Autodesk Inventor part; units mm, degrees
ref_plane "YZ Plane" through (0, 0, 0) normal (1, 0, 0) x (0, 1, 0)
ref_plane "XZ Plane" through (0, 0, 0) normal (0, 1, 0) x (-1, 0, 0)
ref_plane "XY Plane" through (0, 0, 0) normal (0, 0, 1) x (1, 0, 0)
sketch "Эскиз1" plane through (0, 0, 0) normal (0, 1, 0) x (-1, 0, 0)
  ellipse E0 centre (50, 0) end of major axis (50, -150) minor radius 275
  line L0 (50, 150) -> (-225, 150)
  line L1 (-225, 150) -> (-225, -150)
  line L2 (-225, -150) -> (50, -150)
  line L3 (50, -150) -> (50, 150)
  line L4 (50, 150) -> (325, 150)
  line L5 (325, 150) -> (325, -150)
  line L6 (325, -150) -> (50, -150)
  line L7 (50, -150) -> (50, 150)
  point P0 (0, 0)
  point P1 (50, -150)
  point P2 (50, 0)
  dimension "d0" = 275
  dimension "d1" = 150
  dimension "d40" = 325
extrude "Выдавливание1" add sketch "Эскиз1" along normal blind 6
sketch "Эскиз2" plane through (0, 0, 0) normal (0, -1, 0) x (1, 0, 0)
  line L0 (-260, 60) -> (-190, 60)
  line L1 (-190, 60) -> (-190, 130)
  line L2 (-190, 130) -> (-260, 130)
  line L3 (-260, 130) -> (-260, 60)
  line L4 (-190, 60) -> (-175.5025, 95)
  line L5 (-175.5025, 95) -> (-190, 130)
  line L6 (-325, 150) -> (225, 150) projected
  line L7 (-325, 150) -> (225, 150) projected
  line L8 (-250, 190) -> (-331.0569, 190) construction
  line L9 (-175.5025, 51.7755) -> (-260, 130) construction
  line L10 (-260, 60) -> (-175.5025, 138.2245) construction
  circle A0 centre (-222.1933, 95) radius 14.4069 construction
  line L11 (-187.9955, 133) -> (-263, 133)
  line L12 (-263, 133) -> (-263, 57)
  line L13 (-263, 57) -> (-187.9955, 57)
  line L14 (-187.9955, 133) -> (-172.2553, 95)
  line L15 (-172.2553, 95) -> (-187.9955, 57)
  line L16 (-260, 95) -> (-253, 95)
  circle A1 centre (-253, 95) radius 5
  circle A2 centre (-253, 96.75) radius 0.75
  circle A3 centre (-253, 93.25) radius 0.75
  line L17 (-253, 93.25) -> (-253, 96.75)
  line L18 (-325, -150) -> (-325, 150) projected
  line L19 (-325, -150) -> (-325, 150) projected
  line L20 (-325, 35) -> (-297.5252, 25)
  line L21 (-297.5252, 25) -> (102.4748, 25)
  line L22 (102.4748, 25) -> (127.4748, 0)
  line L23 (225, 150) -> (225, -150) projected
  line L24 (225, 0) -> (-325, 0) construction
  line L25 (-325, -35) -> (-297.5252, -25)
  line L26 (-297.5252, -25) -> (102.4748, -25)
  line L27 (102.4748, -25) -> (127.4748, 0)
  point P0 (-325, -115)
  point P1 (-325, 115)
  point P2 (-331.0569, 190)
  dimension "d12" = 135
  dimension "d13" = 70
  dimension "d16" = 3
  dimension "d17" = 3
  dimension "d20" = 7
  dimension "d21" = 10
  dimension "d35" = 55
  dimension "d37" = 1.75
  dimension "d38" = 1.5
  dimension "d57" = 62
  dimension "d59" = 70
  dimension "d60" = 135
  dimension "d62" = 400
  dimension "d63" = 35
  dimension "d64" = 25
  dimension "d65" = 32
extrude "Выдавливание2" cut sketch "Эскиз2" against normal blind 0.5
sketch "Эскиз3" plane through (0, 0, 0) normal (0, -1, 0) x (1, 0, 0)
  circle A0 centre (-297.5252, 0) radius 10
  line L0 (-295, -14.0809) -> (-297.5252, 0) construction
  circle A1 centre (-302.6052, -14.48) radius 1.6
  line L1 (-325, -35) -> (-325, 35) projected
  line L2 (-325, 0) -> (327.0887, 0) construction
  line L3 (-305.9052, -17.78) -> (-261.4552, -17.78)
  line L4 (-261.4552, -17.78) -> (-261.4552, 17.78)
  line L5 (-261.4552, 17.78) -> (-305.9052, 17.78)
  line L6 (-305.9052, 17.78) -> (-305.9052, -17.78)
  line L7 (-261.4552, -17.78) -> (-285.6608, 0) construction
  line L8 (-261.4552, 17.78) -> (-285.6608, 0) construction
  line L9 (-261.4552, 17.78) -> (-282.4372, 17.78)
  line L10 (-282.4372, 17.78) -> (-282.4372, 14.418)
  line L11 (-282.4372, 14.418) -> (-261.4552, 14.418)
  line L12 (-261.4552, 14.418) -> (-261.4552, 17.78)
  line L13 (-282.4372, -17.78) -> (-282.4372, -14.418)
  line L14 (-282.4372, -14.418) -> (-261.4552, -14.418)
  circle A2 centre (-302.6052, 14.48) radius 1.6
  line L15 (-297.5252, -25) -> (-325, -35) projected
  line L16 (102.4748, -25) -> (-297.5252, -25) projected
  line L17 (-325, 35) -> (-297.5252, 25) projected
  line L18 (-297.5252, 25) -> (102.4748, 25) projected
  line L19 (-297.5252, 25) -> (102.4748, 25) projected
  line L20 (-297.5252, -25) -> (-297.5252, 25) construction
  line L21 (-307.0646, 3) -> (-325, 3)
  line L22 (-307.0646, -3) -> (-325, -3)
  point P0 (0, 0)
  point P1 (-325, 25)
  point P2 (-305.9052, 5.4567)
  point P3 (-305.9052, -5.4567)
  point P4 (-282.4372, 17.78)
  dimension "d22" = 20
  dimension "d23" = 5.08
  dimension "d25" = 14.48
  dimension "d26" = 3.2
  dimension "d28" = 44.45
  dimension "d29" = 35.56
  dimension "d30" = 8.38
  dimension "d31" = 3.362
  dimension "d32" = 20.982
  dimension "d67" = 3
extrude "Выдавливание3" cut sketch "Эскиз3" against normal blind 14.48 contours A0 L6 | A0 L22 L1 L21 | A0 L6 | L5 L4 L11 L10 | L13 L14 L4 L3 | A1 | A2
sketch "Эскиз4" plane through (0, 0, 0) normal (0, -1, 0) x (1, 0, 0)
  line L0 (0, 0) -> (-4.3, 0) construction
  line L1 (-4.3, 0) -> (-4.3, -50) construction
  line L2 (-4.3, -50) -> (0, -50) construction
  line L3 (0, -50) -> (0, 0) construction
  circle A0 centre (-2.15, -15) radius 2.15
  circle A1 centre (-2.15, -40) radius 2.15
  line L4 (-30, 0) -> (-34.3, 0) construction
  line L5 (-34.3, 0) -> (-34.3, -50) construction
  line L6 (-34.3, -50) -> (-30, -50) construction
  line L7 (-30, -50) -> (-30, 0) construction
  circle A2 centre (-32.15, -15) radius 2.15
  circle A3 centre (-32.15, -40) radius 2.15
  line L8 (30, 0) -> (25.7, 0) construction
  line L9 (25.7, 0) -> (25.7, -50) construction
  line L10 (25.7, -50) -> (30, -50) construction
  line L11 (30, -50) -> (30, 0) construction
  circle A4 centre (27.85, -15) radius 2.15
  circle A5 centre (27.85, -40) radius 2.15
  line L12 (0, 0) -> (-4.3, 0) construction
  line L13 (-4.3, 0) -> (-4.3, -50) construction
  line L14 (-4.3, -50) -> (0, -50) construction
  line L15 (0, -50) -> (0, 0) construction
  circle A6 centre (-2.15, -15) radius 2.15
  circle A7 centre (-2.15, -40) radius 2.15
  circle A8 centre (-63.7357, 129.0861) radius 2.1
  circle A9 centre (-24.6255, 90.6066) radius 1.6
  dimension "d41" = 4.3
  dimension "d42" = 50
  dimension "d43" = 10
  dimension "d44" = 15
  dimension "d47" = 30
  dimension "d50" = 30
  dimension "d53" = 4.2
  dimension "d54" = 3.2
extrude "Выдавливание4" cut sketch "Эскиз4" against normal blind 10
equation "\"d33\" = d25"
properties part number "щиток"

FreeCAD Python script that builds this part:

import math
import FreeCAD as App
import Part
import Sketcher

V = App.Vector
Q = App.Units.Quantity

doc = App.newDocument("Part")
body = doc.addObject("PartDesign::Body", "Body")

# Sketch on XZ plane
sketch1 = body.newObject("Sketcher::SketchObject", "Sketch")
sketch1.AttachmentSupport = (doc.getObject("XZ_Plane"), [""])
sketch1.MapMode = "FlatFace"
sketch1.addGeometry(Part.LineSegment(V(-325, -150, 0), V(-325, 150, 0)), False)
sketch1.addGeometry(Part.LineSegment(V(-325, 150, 0), V(225, 150, 0)), False)
sketch1.addGeometry(Part.LineSegment(V(225, 150, 0), V(225, -150, 0)), False)
sketch1.addGeometry(Part.LineSegment(V(225, -150, 0), V(-325, -150, 0)), False)
sketch1.addConstraint(Sketcher.Constraint("Coincident", 0, 2, 1, 1))
sketch1.addConstraint(Sketcher.Constraint("Coincident", 1, 2, 2, 1))
sketch1.addConstraint(Sketcher.Constraint("Coincident", 2, 2, 3, 1))
sketch1.addConstraint(Sketcher.Constraint("Coincident", 3, 2, 0, 1))
sketch1.addConstraint(Sketcher.Constraint("Vertical", 0))
sketch1.addConstraint(Sketcher.Constraint("Horizontal", 1))
sketch1.addConstraint(Sketcher.Constraint("Vertical", 2))
sketch1.addConstraint(Sketcher.Constraint("Horizontal", 3))
sketch1.addConstraint(Sketcher.Constraint("DistanceX", 0, 2, -1, 1, Q("325 mm")))
sketch1.addConstraint(Sketcher.Constraint("DistanceY", -1, 1, 0, 2, Q("150 mm")))
sketch1.addConstraint(Sketcher.Constraint("DistanceY", 2, 2, -1, 1, Q("150 mm")))
sketch1.addConstraint(Sketcher.Constraint("DistanceX", 1, 1, 1, 2, Q("550 mm")))
pad1 = body.newObject("PartDesign::Pad", "Pad")
pad1.Profile = sketch1
pad1.Length = 6
pad1.Reversed = True

# Sketch on XZ plane
sketch2 = body.newObject("Sketcher::SketchObject", "Sketch001")
sketch2.AttachmentSupport = (doc.getObject("XZ_Plane"), [""])
sketch2.MapMode = "FlatFace"
sketch2.addGeometry(Part.Circle(V(-253, 95, 0), V(0, 0, 1), 5), False)
sketch2.addGeometry(Part.Circle(V(-253, 93.2, 0), V(0, 0, 1), 0.8), False)
sketch2.addGeometry(Part.Circle(V(-253, 96.8, 0), V(0, 0, 1), 0.8), False)
sketch2.addGeometry(Part.LineSegment(V(-172.3, 95, 0), V(-188, 133, 0)), False)
sketch2.addGeometry(Part.LineSegment(V(-188, 133, 0), V(-263, 133, 0)), False)
sketch2.addGeometry(Part.LineSegment(V(-263, 133, 0), V(-263, 57, 0)), False)
sketch2.addGeometry(Part.LineSegment(V(-263, 57, 0), V(-188, 57, 0)), False)
sketch2.addGeometry(Part.LineSegment(V(-188, 57, 0), V(-172.3, 95, 0)), False)
sketch2.addGeometry(Part.LineSegment(V(-190, 60, 0), V(-260, 60, 0)), False)
sketch2.addGeometry(Part.LineSegment(V(-260, 60, 0), V(-260, 130, 0)), False)
sketch2.addGeometry(Part.LineSegment(V(-260, 130, 0), V(-190, 130, 0)), False)
sketch2.addGeometry(Part.LineSegment(V(-190, 130, 0), V(-175.5, 95, 0)), False)
sketch2.addGeometry(Part.LineSegment(V(-175.5, 95, 0), V(-190, 60, 0)), False)
sketch2.addGeometry(Part.LineSegment(V(-325, 35, 0), V(-325, -35, 0)), False)
sketch2.addGeometry(Part.LineSegment(V(-325, -35, 0), V(-297.5, -25, 0)), False)
sketch2.addGeometry(Part.LineSegment(V(-297.5, -25, 0), V(102.5, -25, 0)), False)
sketch2.addGeometry(Part.LineSegment(V(102.5, -25, 0), V(127.5, 0, 0)), False)
sketch2.addGeometry(Part.LineSegment(V(127.5, 0, 0), V(102.5, 25, 0)), False)
sketch2.addGeometry(Part.LineSegment(V(102.5, 25, 0), V(-297.5, 25, 0)), False)
sketch2.addGeometry(Part.LineSegment(V(-297.5, 25, 0), V(-325, 35, 0)), False)
sketch2.addConstraint(Sketcher.Constraint("Coincident", 3, 2, 4, 1))
sketch2.addConstraint(Sketcher.Constraint("Coincident", 4, 2, 5, 1))
sketch2.addConstraint(Sketcher.Constraint("Coincident", 5, 2, 6, 1))
sketch2.addConstraint(Sketcher.Constraint("Coincident", 6, 2, 7, 1))
sketch2.addConstraint(Sketcher.Constraint("Coincident", 7, 2, 3, 1))
sketch2.addConstraint(Sketcher.Constraint("Coincident", 8, 2, 9, 1))
sketch2.addConstraint(Sketcher.Constraint("Coincident", 9, 2, 10, 1))
sketch2.addConstraint(Sketcher.Constraint("Coincident", 10, 2, 11, 1))
sketch2.addConstraint(Sketcher.Constraint("Coincident", 11, 2, 12, 1))
sketch2.addConstraint(Sketcher.Constraint("Coincident", 12, 2, 8, 1))
sketch2.addConstraint(Sketcher.Constraint("Coincident", 13, 2, 14, 1))
sketch2.addConstraint(Sketcher.Constraint("Coincident", 14, 2, 15, 1))
sketch2.addConstraint(Sketcher.Constraint("Coincident", 15, 2, 16, 1))
sketch2.addConstraint(Sketcher.Constraint("Coincident", 16, 2, 17, 1))
sketch2.addConstraint(Sketcher.Constraint("Coincident", 17, 2, 18, 1))
sketch2.addConstraint(Sketcher.Constraint("Coincident", 18, 2, 19, 1))
sketch2.addConstraint(Sketcher.Constraint("Coincident", 19, 2, 13, 1))
sketch2.addConstraint(Sketcher.Constraint("Horizontal", 4))
sketch2.addConstraint(Sketcher.Constraint("Vertical", 5))
sketch2.addConstraint(Sketcher.Constraint("Horizontal", 6))
sketch2.addConstraint(Sketcher.Constraint("Horizontal", 8))
sketch2.addConstraint(Sketcher.Constraint("Vertical", 9))
sketch2.addConstraint(Sketcher.Constraint("Horizontal", 10))
sketch2.addConstraint(Sketcher.Constraint("Vertical", 13))
sketch2.addConstraint(Sketcher.Constraint("Horizontal", 15))
sketch2.addConstraint(Sketcher.Constraint("Horizontal", 18))
sketch2.addConstraint(Sketcher.Constraint("Equal", 1, 2))
sketch2.addConstraint(Sketcher.Constraint("Symmetric", 15, 2, 17, 2, -1))
sketch2.addConstraint(Sketcher.Constraint("PointOnObject", 16, 2, -1))
sketch2.addConstraint(Sketcher.Constraint("Parallel", 3, 11))
sketch2.addConstraint(Sketcher.Constraint("Parallel", 7, 12))
sketch2.addConstraint(Sketcher.Constraint("Perpendicular", 16, 17))
sketch2.addConstraint(Sketcher.Constraint("Horizontal", 0, 3, 7, 2))
sketch2.addConstraint(Sketcher.Constraint("Horizontal", 7, 2, 11, 2))
sketch2.addConstraint(Sketcher.Constraint("Vertical", 0, 3, 1, 3))
sketch2.addConstraint(Sketcher.Constraint("Vertical", 1, 3, 2, 3))
sketch2.addConstraint(Sketcher.Constraint("Vertical", 3, 2, 6, 2))
sketch2.addConstraint(Sketcher.Constraint("Vertical", 10, 2, 12, 2))
sketch2.addConstraint(Sketcher.Constraint("Vertical", 14, 2, 18, 2))
sketch2.addConstraint(Sketcher.Constraint("Equal", 10, 9))
sketch2.addConstraint(Sketcher.Constraint("Equal", 9, 13))
sketch2.addConstraint(Sketcher.Constraint("Equal", 3, 7))
sketch2.addConstraint(Sketcher.Constraint("Equal", 14, 19))
sketch2.addConstraint(Sketcher.Constraint("Diameter", 0, Q("10 mm")))
sketch2.addConstraint(Sketcher.Constraint("Diameter", 1, Q("1.5 mm")))
sketch2.addConstraint(Sketcher.Constraint("DistanceX", 8, 2, 8, 1, Q("70 mm")))
sketch2.addConstraint(Sketcher.Constraint("DistanceX", 15, 1, 15, 2, Q("400 mm")))
sketch2.addConstraint(Sketcher.Constraint("DistanceY", 14, 2, -1, 1, Q("25 mm")))
sketch2.addConstraint(Sketcher.Constraint("DistanceX", 4, 2, 2, 3, Q("10 mm")))
sketch2.addConstraint(Sketcher.Constraint("DistanceX", 5, 2, 8, 2, Q("3 mm")))
sketch2.addConstraint(Sketcher.Constraint("DistanceY", 5, 2, 8, 2, Q("3 mm")))
sketch2.addConstraint(Sketcher.Constraint("DistanceX", 13, 2, 5, 2, Q("62 mm")))
sketch2.addConstraint(Sketcher.Constraint("DistanceY", 17, 2, 7, 2, Q("70 mm")))
sketch2.addConstraint(Sketcher.Constraint("Angle", 14, Q("20 deg")))
sketch2.addConstraint(Sketcher.Constraint("DistanceY", 1, 3, 0, 3, Q("1.75 mm")))
sketch2.addConstraint(Sketcher.Constraint("DistanceY", 0, 3, 2, 3, Q("1.75 mm")))
sketch2.addConstraint(Sketcher.Constraint("DistanceX", 0, 3, -1, 1, Q("253 mm")))
sketch2.addConstraint(Sketcher.Constraint("Angle", 3, Q("112.5 deg")))
sketch2.addConstraint(Sketcher.Constraint("DistanceX", 7, 2, 15, 2, Q("274.73 mm")))
pocket1 = body.newObject("PartDesign::Pocket", "Pocket")
pocket1.Profile = sketch2
pocket1.Length = 0.5

# Sketch on XZ plane
sketch3 = body.newObject("Sketcher::SketchObject", "Sketch002")
sketch3.AttachmentSupport = (doc.getObject("XZ_Plane"), [""])
sketch3.MapMode = "FlatFace"
sketch3.addGeometry(Part.LineSegment(V(-307.1, 3, 0), V(-325, 3, 0)), False)
sketch3.addGeometry(Part.LineSegment(V(-325, 3, 0), V(-325, -3, 0)), False)
sketch3.addGeometry(Part.LineSegment(V(-325, -3, 0), V(-307.1, -3, 0)), False)
sketch3.addGeometry(Part.ArcOfCircle(Part.Circle(V(-297.5, 0, 0), V(0, 0, 1), 10), math.radians(-163), math.radians(163)), False)
sketch3.addGeometry(Part.LineSegment(V(-261.5, 17.8, 0), V(-282.4, 17.8, 0)), False)
sketch3.addGeometry(Part.LineSegment(V(-282.4, 17.8, 0), V(-282.4, 14.4, 0)), False)
sketch3.addGeometry(Part.LineSegment(V(-282.4, 14.4, 0), V(-261.5, 14.4, 0)), False)
sketch3.addGeometry(Part.LineSegment(V(-261.5, 14.4, 0), V(-261.5, 17.8, 0)), False)
sketch3.addGeometry(Part.LineSegment(V(-282.4, -14.4, 0), V(-282.4, -17.8, 0)), False)
sketch3.addGeometry(Part.LineSegment(V(-282.4, -17.8, 0), V(-261.5, -17.8, 0)), False)
sketch3.addGeometry(Part.LineSegment(V(-261.5, -17.8, 0), V(-261.5, -14.4, 0)), False)
sketch3.addGeometry(Part.LineSegment(V(-261.5, -14.4, 0), V(-282.4, -14.4, 0)), False)
sketch3.addGeometry(Part.Circle(V(-302.6, -14.5, 0), V(0, 0, 1), 1.6), False)
sketch3.addGeometry(Part.Circle(V(-302.6, 14.5, 0), V(0, 0, 1), 1.6), False)
sketch3.addConstraint(Sketcher.Constraint("Coincident", 0, 2, 1, 1))
sketch3.addConstraint(Sketcher.Constraint("Coincident", 1, 2, 2, 1))
sketch3.addConstraint(Sketcher.Constraint("Coincident", 2, 2, 3, 1))
sketch3.addConstraint(Sketcher.Constraint("Coincident", 3, 2, 0, 1))
sketch3.addConstraint(Sketcher.Constraint("Coincident", 4, 2, 5, 1))
sketch3.addConstraint(Sketcher.Constraint("Coincident", 5, 2, 6, 1))
sketch3.addConstraint(Sketcher.Constraint("Coincident", 6, 2, 7, 1))
sketch3.addConstraint(Sketcher.Constraint("Coincident", 7, 2, 4, 1))
sketch3.addConstraint(Sketcher.Constraint("Coincident", 8, 2, 9, 1))
sketch3.addConstraint(Sketcher.Constraint("Coincident", 9, 2, 10, 1))
sketch3.addConstraint(Sketcher.Constraint("Coincident", 10, 2, 11, 1))
sketch3.addConstraint(Sketcher.Constraint("Coincident", 11, 2, 8, 1))
sketch3.addConstraint(Sketcher.Constraint("Horizontal", 0))
sketch3.addConstraint(Sketcher.Constraint("Vertical", 1))
sketch3.addConstraint(Sketcher.Constraint("Horizontal", 2))
sketch3.addConstraint(Sketcher.Constraint("Horizontal", 4))
sketch3.addConstraint(Sketcher.Constraint("Vertical", 5))
sketch3.addConstraint(Sketcher.Constraint("Horizontal", 6))
sketch3.addConstraint(Sketcher.Constraint("Vertical", 7))
sketch3.addConstraint(Sketcher.Constraint("Vertical", 8))
sketch3.addConstraint(Sketcher.Constraint("Horizontal", 9))
sketch3.addConstraint(Sketcher.Constraint("Vertical", 10))
sketch3.addConstraint(Sketcher.Constraint("Horizontal", 11))
sketch3.addConstraint(Sketcher.Constraint("Equal", 12, 13))
sketch3.addConstraint(Sketcher.Constraint("Symmetric", 12, 3, 13, 3, -1))
sketch3.addConstraint(Sketcher.Constraint("Symmetric", 2, 2, 3, 2, -1))
sketch3.addConstraint(Sketcher.Constraint("Symmetric", 4, 2, 8, 2, -1))
sketch3.addConstraint(Sketcher.Constraint("Symmetric", 6, 2, 10, 2, -1))
sketch3.addConstraint(Sketcher.Constraint("Radius", 3, Q("10 mm")))
sketch3.addConstraint(Sketcher.Constraint("Diameter", 12, Q("3.2 mm")))
sketch3.addConstraint(Sketcher.Constraint("DistanceY", -1, 1, 0, 2, Q("3 mm")))
sketch3.addConstraint(Sketcher.Constraint("DistanceX", 4, 2, 4, 1, Q("20.982 mm")))
sketch3.addConstraint(Sketcher.Constraint("DistanceY", 5, 2, 5, 1, Q("3.362 mm")))
sketch3.addConstraint(Sketcher.Constraint("DistanceY", 12, 3, -1, 1, Q("14.48 mm")))
sketch3.addConstraint(Sketcher.Constraint("DistanceX", 12, 3, 3, 3, Q("5.08 mm")))
sketch3.addConstraint(Sketcher.Constraint("DistanceY", 9, 2, 7, 2, Q("35.56 mm")))
sketch3.addConstraint(Sketcher.Constraint("DistanceX", 0, 2, -1, 1, Q("325 mm")))
sketch3.addConstraint(Sketcher.Constraint("DistanceX", 3, 3, 6, 2, Q("36.07 mm")))
sketch3.addConstraint(Sketcher.Constraint("DistanceX", 0, 2, 0, 1, Q("17.9354 mm")))
pocket2 = body.newObject("PartDesign::Pocket", "Pocket001")
pocket2.Profile = sketch3
pocket2.Length = 14.48

# Sketch on XZ plane
sketch4 = body.newObject("Sketcher::SketchObject", "Sketch003")
sketch4.AttachmentSupport = (doc.getObject("XZ_Plane"), [""])
sketch4.MapMode = "FlatFace"
sketch4.addGeometry(Part.Circle(V(-2.1, -15, 0), V(0, 0, 1), 2.1), False)
sketch4.addGeometry(Part.Circle(V(-2.1, -40, 0), V(0, 0, 1), 2.1), False)
sketch4.addGeometry(Part.Circle(V(-32.1, -15, 0), V(0, 0, 1), 2.1), False)
sketch4.addGeometry(Part.Circle(V(-32.1, -40, 0), V(0, 0, 1), 2.1), False)
sketch4.addGeometry(Part.Circle(V(27.9, -15, 0), V(0, 0, 1), 2.1), False)
sketch4.addGeometry(Part.Circle(V(27.9, -40, 0), V(0, 0, 1), 2.1), False)
sketch4.addGeometry(Part.Circle(V(-63.7, 129.1, 0), V(0, 0, 1), 2.1), False)
sketch4.addGeometry(Part.Circle(V(-24.6, 90.6, 0), V(0, 0, 1), 1.6), False)
sketch4.addConstraint(Sketcher.Constraint("Equal", 0, 1))
sketch4.addConstraint(Sketcher.Constraint("Equal", 1, 2))
sketch4.addConstraint(Sketcher.Constraint("Equal", 2, 3))
sketch4.addConstraint(Sketcher.Constraint("Equal", 3, 4))
sketch4.addConstraint(Sketcher.Constraint("Equal", 4, 5))
sketch4.addConstraint(Sketcher.Constraint("Horizontal", 0, 3, 2, 3))
sketch4.addConstraint(Sketcher.Constraint("Horizontal", 1, 3, 3, 3))
sketch4.addConstraint(Sketcher.Constraint("Horizontal", 2, 3, 4, 3))
sketch4.addConstraint(Sketcher.Constraint("Horizontal", 3, 3, 5, 3))
sketch4.addConstraint(Sketcher.Constraint("Vertical", 0, 3, 1, 3))
sketch4.addConstraint(Sketcher.Constraint("Vertical", 2, 3, 3, 3))
sketch4.addConstraint(Sketcher.Constraint("Vertical", 4, 3, 5, 3))
sketch4.addConstraint(Sketcher.Constraint("Diameter", 0, Q("4.3 mm")))
sketch4.addConstraint(Sketcher.Constraint("Diameter", 6, Q("4.2 mm")))
sketch4.addConstraint(Sketcher.Constraint("Diameter", 7, Q("3.2 mm")))
sketch4.addConstraint(Sketcher.Constraint("DistanceY", 0, 3, -1, 1, Q("15 mm")))
sketch4.addConstraint(Sketcher.Constraint("DistanceX", 2, 3, 0, 3, Q("30 mm")))
sketch4.addConstraint(Sketcher.Constraint("DistanceX", 0, 3, 4, 3, Q("30 mm")))
sketch4.addConstraint(Sketcher.Constraint("DistanceY", 1, 3, -1, 1, Q("40 mm")))
sketch4.addConstraint(Sketcher.Constraint("DistanceX", 0, 3, -1, 1, Q("2.15 mm")))
sketch4.addConstraint(Sketcher.Constraint("DistanceY", -1, 1, 6, 3, Q("129.086 mm")))
sketch4.addConstraint(Sketcher.Constraint("DistanceX", 6, 3, -1, 1, Q("63.7357 mm")))
sketch4.addConstraint(Sketcher.Constraint("DistanceX", 7, 3, -1, 1, Q("24.6255 mm")))
sketch4.addConstraint(Sketcher.Constraint("DistanceY", -1, 1, 7, 3, Q("90.6066 mm")))
pocket3 = body.newObject("PartDesign::Pocket", "Pocket002")
pocket3.Profile = sketch4
pocket3.Length = 10

doc.recompute()
